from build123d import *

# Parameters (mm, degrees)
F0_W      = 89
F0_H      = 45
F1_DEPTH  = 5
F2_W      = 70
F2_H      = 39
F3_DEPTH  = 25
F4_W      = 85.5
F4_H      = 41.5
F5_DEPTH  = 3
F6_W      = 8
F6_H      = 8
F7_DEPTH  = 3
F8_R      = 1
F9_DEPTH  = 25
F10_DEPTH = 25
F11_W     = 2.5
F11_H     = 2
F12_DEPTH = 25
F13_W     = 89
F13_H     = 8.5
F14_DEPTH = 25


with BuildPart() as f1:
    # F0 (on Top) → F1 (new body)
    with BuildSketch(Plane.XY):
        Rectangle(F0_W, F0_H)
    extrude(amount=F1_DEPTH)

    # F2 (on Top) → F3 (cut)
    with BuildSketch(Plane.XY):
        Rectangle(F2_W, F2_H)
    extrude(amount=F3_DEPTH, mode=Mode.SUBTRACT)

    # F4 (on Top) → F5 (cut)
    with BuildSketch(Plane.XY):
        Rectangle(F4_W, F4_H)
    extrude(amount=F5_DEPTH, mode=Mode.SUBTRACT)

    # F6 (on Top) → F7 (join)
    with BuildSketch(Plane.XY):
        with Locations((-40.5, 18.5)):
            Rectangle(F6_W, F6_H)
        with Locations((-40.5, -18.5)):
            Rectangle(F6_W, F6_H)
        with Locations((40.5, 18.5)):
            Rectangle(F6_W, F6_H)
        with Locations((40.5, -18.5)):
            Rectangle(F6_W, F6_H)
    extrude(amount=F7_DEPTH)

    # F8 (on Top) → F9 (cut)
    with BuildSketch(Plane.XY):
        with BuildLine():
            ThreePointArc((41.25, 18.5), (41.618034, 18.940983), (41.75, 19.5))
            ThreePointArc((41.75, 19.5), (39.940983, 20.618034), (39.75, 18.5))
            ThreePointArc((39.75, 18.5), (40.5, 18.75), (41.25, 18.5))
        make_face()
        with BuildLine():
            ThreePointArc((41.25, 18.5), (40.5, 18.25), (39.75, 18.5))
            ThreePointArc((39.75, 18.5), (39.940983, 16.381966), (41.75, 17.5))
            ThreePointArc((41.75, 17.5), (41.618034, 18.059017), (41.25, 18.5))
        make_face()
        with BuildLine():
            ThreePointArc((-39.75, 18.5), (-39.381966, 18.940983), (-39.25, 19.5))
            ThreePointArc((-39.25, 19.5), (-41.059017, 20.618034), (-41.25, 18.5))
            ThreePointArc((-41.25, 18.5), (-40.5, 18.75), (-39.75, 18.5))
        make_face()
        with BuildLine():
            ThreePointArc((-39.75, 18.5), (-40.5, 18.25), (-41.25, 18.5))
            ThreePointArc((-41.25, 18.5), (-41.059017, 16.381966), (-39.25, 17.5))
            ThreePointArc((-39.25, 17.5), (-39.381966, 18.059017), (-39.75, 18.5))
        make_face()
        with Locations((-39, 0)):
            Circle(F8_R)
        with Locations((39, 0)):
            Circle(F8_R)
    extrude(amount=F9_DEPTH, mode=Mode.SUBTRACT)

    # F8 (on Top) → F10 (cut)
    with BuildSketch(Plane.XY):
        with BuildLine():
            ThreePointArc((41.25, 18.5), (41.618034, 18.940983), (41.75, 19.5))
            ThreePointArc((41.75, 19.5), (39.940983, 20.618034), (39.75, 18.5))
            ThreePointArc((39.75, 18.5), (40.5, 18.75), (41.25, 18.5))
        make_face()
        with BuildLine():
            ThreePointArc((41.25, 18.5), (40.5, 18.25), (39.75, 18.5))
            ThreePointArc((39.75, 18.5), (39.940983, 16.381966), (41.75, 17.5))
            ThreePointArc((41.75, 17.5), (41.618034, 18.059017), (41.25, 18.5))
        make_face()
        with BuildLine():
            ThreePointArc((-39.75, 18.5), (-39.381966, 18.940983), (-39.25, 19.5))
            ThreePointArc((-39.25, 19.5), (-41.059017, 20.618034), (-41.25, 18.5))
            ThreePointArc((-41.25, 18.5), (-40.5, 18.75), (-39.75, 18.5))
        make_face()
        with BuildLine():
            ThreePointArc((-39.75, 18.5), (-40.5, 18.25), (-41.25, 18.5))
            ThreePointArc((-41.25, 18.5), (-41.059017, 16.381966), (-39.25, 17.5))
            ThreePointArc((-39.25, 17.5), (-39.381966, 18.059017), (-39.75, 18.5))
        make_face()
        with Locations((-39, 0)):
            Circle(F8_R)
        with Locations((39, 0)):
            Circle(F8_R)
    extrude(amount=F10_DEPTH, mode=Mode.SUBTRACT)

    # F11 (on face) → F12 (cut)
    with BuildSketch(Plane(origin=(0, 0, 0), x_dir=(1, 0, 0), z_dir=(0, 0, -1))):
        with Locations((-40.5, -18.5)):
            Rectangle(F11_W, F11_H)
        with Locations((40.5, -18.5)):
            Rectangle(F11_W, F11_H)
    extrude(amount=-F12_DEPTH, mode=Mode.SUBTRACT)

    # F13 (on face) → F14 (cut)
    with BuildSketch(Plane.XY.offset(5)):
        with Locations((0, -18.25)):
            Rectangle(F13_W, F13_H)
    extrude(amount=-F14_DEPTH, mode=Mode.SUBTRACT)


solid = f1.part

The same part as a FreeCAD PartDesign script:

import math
import FreeCAD as App
import Part
import Sketcher
from FreeCAD import Vector

doc = App.newDocument("Part")
body = doc.addObject("PartDesign::Body", "Body")
body.AllowCompound = True

sketch1 = body.newObject("Sketcher::SketchObject", "Sketch")
sketch1.AttachmentSupport = (doc.getObject("XY_Plane"), [""])
sketch1.MapMode = "FlatFace"
sketch1.addGeometry([
    Part.LineSegment(Vector(-44, 22, 0), Vector(-44, -22, 0)),
    Part.LineSegment(Vector(-44, -22, 0), Vector(44, -22, 0)),
    Part.LineSegment(Vector(44, -22, 0), Vector(44, 22, 0)),
    Part.LineSegment(Vector(44, 22, 0), Vector(-44, 22, 0)),
], False)
sketch1.addConstraint([
    Sketcher.Constraint("Coincident", 0, 2, 1, 1),
    Sketcher.Constraint("Coincident", 1, 2, 2, 1),
    Sketcher.Constraint("Coincident", 2, 2, 3, 1),
    Sketcher.Constraint("Coincident", 3, 2, 0, 1),
    Sketcher.Constraint("Vertical", 0),
    Sketcher.Constraint("Horizontal", 1),
    Sketcher.Constraint("Vertical", 2),
    Sketcher.Constraint("Horizontal", 3),
    Sketcher.Constraint("Symmetric", 0, 2, 2, 2, -1, 1),
    Sketcher.Constraint("DistanceX", 1, 1, 1, 2, 89.0),
    Sketcher.Constraint("DistanceY", 0, 2, 0, 1, 45.0),
])
pad1 = body.newObject("PartDesign::Pad", "Pad")
pad1.Profile = sketch1
pad1.Length = 5

sketch2 = body.newObject("Sketcher::SketchObject", "Sketch001")
sketch2.AttachmentSupport = (doc.getObject("XY_Plane"), [""])
sketch2.MapMode = "FlatFace"
sketch2.addGeometry([
    Part.LineSegment(Vector(-35, 20, 0), Vector(-35, -20, 0)),
    Part.LineSegment(Vector(-35, -20, 0), Vector(35, -20, 0)),
    Part.LineSegment(Vector(35, -20, 0), Vector(35, 20, 0)),
    Part.LineSegment(Vector(35, 20, 0), Vector(-35, 20, 0)),
], False)
sketch2.addConstraint([
    Sketcher.Constraint("Coincident", 0, 2, 1, 1),
    Sketcher.Constraint("Coincident", 1, 2, 2, 1),
    Sketcher.Constraint("Coincident", 2, 2, 3, 1),
    Sketcher.Constraint("Coincident", 3, 2, 0, 1),
    Sketcher.Constraint("Vertical", 0),
    Sketcher.Constraint("Horizontal", 1),
    Sketcher.Constraint("Vertical", 2),
    Sketcher.Constraint("Horizontal", 3),
    Sketcher.Constraint("Symmetric", 0, 2, 2, 2, -1, 1),
    Sketcher.Constraint("DistanceX", 1, 1, 1, 2, 70.0),
    Sketcher.Constraint("DistanceY", 0, 2, 0, 1, 39.0),
])
pocket1 = body.newObject("PartDesign::Pocket", "Pocket")
pocket1.Profile = sketch2
pocket1.Length = 25
pocket1.Reversed = True

sketch3 = body.newObject("Sketcher::SketchObject", "Sketch002")
sketch3.AttachmentSupport = (doc.getObject("XY_Plane"), [""])
sketch3.MapMode = "FlatFace"
sketch3.addGeometry([
    Part.LineSegment(Vector(-43, 21, 0), Vector(-43, -21, 0)),
    Part.LineSegment(Vector(-43, -21, 0), Vector(43, -21, 0)),
    Part.LineSegment(Vector(43, -21, 0), Vector(43, 21, 0)),
    Part.LineSegment(Vector(43, 21, 0), Vector(-43, 21, 0)),
], False)
sketch3.addConstraint([
    Sketcher.Constraint("Coincident", 0, 2, 1, 1),
    Sketcher.Constraint("Coincident", 1, 2, 2, 1),
    Sketcher.Constraint("Coincident", 2, 2, 3, 1),
    Sketcher.Constraint("Coincident", 3, 2, 0, 1),
    Sketcher.Constraint("Vertical", 0),
    Sketcher.Constraint("Horizontal", 1),
    Sketcher.Constraint("Vertical", 2),
    Sketcher.Constraint("Horizontal", 3),
    Sketcher.Constraint("Symmetric", 0, 2, 2, 2, -1, 1),
    Sketcher.Constraint("DistanceX", 1, 1, 1, 2, 85.5),
    Sketcher.Constraint("DistanceY", 0, 2, 0, 1, 41.5),
])
pocket2 = body.newObject("PartDesign::Pocket", "Pocket001")
pocket2.Profile = sketch3
pocket2.Length = 3
pocket2.Reversed = True

sketch4 = body.newObject("Sketcher::SketchObject", "Sketch003")
sketch4.AttachmentSupport = (doc.getObject("XY_Plane"), [""])
sketch4.MapMode = "FlatFace"
sketch4.addGeometry([
    Part.LineSegment(Vector(-44, 22, 0), Vector(-44, 14, 0)),
    Part.LineSegment(Vector(-44, 14, 0), Vector(-36, 14, 0)),
    Part.LineSegment(Vector(-36, 14, 0), Vector(-36, 22, 0)),
    Part.LineSegment(Vector(-36, 22, 0), Vector(-44, 22, 0)),
    Part.LineSegment(Vector(-44, -14, 0), Vector(-44, -22, 0)),
    Part.LineSegment(Vector(-44, -22, 0), Vector(-36, -22, 0)),
    Part.LineSegment(Vector(-36, -22, 0), Vector(-36, -14, 0)),
    Part.LineSegment(Vector(-36, -14, 0), Vector(-44, -14, 0)),
    Part.LineSegment(Vector(36, 22, 0), Vector(36, 14, 0)),
    Part.LineSegment(Vector(36, 14, 0), Vector(44, 14, 0)),
    Part.LineSegment(Vector(44, 14, 0), Vector(44, 22, 0)),
    Part.LineSegment(Vector(44, 22, 0), Vector(36, 22, 0)),
    Part.LineSegment(Vector(36, -14, 0), Vector(36, -22, 0)),
    Part.LineSegment(Vector(36, -22, 0), Vector(44, -22, 0)),
    Part.LineSegment(Vector(44, -22, 0), Vector(44, -14, 0)),
    Part.LineSegment(Vector(44, -14, 0), Vector(36, -14, 0)),
], False)
sketch4.addConstraint([
    Sketcher.Constraint("Coincident", 0, 2, 1, 1),
    Sketcher.Constraint("Coincident", 1, 2, 2, 1),
    Sketcher.Constraint("Coincident", 2, 2, 3, 1),
    Sketcher.Constraint("Coincident", 3, 2, 0, 1),
    Sketcher.Constraint("Coincident", 4, 2, 5, 1),
    Sketcher.Constraint("Coincident", 5, 2, 6, 1),
    Sketcher.Constraint("Coincident", 6, 2, 7, 1),
    Sketcher.Constraint("Coincident", 7, 2, 4, 1),
    Sketcher.Constraint("Coincident", 8, 2, 9, 1),
    Sketcher.Constraint("Coincident", 9, 2, 10, 1),
    Sketcher.Constraint("Coincident", 10, 2, 11, 1),
    Sketcher.Constraint("Coincident", 11, 2, 8, 1),
    Sketcher.Constraint("Coincident", 12, 2, 13, 1),
    Sketcher.Constraint("Coincident", 13, 2, 14, 1),
    Sketcher.Constraint("Coincident", 14, 2, 15, 1),
    Sketcher.Constraint("Coincident", 15, 2, 12, 1),
    Sketcher.Constraint("Vertical", 0),
    Sketcher.Constraint("Horizontal", 1),
    Sketcher.Constraint("Vertical", 2),
    Sketcher.Constraint("Horizontal", 3),
    Sketcher.Constraint("Vertical", 4),
    Sketcher.Constraint("Horizontal", 5),
    Sketcher.Constraint("Vertical", 6),
    Sketcher.Constraint("Horizontal", 7),
    Sketcher.Constraint("Vertical", 8),
    Sketcher.Constraint("Horizontal", 9),
    Sketcher.Constraint("Vertical", 10),
    Sketcher.Constraint("Horizontal", 11),
    Sketcher.Constraint("Vertical", 12),
    Sketcher.Constraint("Horizontal", 13),
    Sketcher.Constraint("Vertical", 14),
    Sketcher.Constraint("Horizontal", 15),
    Sketcher.Constraint("Symmetric", 6, 2, 8, 2, -1, 1),
    Sketcher.Constraint("Symmetric", 4, 2, 10, 2, -1, 1),
    Sketcher.Constraint("Symmetric", 2, 2, 12, 2, -1, 1),
    Sketcher.Constraint("Symmetric", 0, 2, 14, 2, -1, 1),
    Sketcher.Constraint("Symmetric", 1, 2, 8, 2, -2),
    Sketcher.Constraint("Symmetric", 3, 2, 10, 2, -2),
    Sketcher.Constraint("Equal", 15, 0),
    Sketcher.Constraint("DistanceX", 1, 1, 1, 2, 8.0),
    Sketcher.Constraint("DistanceY", 4, 2, 0, 2, 37.0),
    Sketcher.Constraint("DistanceX", 1, 2, 8, 2, 73.0),
])
pad2 = body.newObject("PartDesign::Pad", "Pad001")
pad2.Profile = sketch4
pad2.Length = 3

sketch5 = body.newObject("Sketcher::SketchObject", "Sketch004")
sketch5.AttachmentSupport = (doc.getObject("XY_Plane"), [""])
sketch5.MapMode = "FlatFace"
sketch5.addGeometry([
    Part.ArcOfCircle(Part.Circle(Vector(40.5, 19.5, 0), Vector(0, 0, 1), 1.2), math.radians(-53), math.radians(0)),
    Part.ArcOfCircle(Part.Circle(Vector(40.5, 19.5, 0), Vector(0, 0, 1), 1.3), math.radians(0), math.radians(233)),
    Part.ArcOfCircle(Part.Circle(Vector(40.5, 17.5, 0), Vector(0, 0, 1), 1.2), math.radians(53), math.radians(127)),
    Part.ArcOfCircle(Part.Circle(Vector(40.5, 19.5, 0), Vector(0, 0, 1), 1.2), math.radians(-127), math.radians(-53)),
    Part.ArcOfCircle(Part.Circle(Vector(40.5, 17.5, 0), Vector(0, 0, 1), 1.3), math.radians(127), math.radians(360)),
    Part.ArcOfCircle(Part.Circle(Vector(40.5, 17.5, 0), Vector(0, 0, 1), 1.2), math.radians(0), math.radians(53)),
    Part.ArcOfCircle(Part.Circle(Vector(-40.5, 19.5, 0), Vector(0, 0, 1), 1.2), math.radians(-53), math.radians(0)),
    Part.ArcOfCircle(Part.Circle(Vector(-40.5, 19.5, 0), Vector(0, 0, 1), 1.3), math.radians(0), math.radians(233)),
    Part.ArcOfCircle(Part.Circle(Vector(-40.5, 17.5, 0), Vector(0, 0, 1), 1.2), math.radians(53), math.radians(127)),
    Part.ArcOfCircle(Part.Circle(Vector(-40.5, 19.5, 0), Vector(0, 0, 1), 1.2), math.radians(-127), math.radians(-53)),
    Part.ArcOfCircle(Part.Circle(Vector(-40.5, 17.5, 0), Vector(0, 0, 1), 1.3), math.radians(127), math.radians(360)),
    Part.ArcOfCircle(Part.Circle(Vector(-40.5, 17.5, 0), Vector(0, 0, 1), 1.2), math.radians(0), math.radians(53)),
    Part.Circle(Vector(-39, 0, 0), Vector(0, 0, 1), 1),
    Part.Circle(Vector(39, 0, 0), Vector(0, 0, 1), 1),
], False)
sketch5.addConstraint([
    Sketcher.Constraint("Tangent", 0, 2, 1, 1),
    Sketcher.Constraint("Coincident", 1, 2, 2, 2),
    Sketcher.Constraint("Coincident", 2, 1, 0, 1),
    Sketcher.Constraint("Coincident", 3, 1, 4, 1),
    Sketcher.Constraint("Tangent", 4, 2, 5, 1),
    Sketcher.Constraint("Coincident", 5, 2, 3, 2),
    Sketcher.Constraint("Tangent", 6, 2, 7, 1),
    Sketcher.Constraint("Coincident", 7, 2, 8, 2),
    Sketcher.Constraint("Coincident", 8, 1, 6, 1),
    Sketcher.Constraint("Coincident", 9, 1, 10, 1),
    Sketcher.Constraint("Tangent", 10, 2, 11, 1),
    Sketcher.Constraint("Coincident", 11, 2, 9, 2),
    Sketcher.Constraint("Coincident", 3, 3, 0, 3),
    Sketcher.Constraint("Coincident", 4, 3, 2, 3),
    Sketcher.Constraint("Coincident", 9, 3, 6, 3),
    Sketcher.Constraint("Coincident", 10, 3, 8, 3),
    Sketcher.Constraint("Coincident", 3, 1, 1, 2),
    Sketcher.Constraint("Coincident", 5, 2, 2, 1),
    Sketcher.Constraint("Coincident", 9, 1, 7, 2),
    Sketcher.Constraint("Coincident", 11, 2, 8, 1),
    Sketcher.Constraint("Equal", 1, 2),
    Sketcher.Constraint("Equal", 5, 6),
    Sketcher.Constraint("Equal", 7, 8),
    Sketcher.Constraint("Equal", 12, 13),
    Sketcher.Constraint("Symmetric", 12, 3, 13, 3, -1, 1),
    Sketcher.Constraint("Symmetric", 0, 3, 6, 3, -2),
    Sketcher.Constraint("Symmetric", 2, 3, 8, 3, -2),
    Sketcher.Constraint("PointOnObject", 12, 3, -1),
    Sketcher.Constraint("Horizontal", 9, 3, 0, 2),
    Sketcher.Constraint("Horizontal", 1, 2, 2, 1),
    Sketcher.Constraint("Horizontal", 11, 3, 4, 2),
    Sketcher.Constraint("Horizontal", 0, 2, 6, 2),
    Sketcher.Constraint("Horizontal", 4, 2, 10, 2),
    Sketcher.Constraint("Diameter", 12, 2.0),
    Sketcher.Constraint("Radius", 0, 1.25),
    Sketcher.Constraint("DistanceX", 12, 3, -1, 1, 39.0),
    Sketcher.Constraint("DistanceY", 2, 3, 0, 3, 2.0),
    Sketcher.Constraint("DistanceX", 6, 3, 1, 3, 81.0),
    Sketcher.Constraint("DistanceY", -1, 1, 0, 3, 19.5),
])
pocket3 = body.newObject("PartDesign::Pocket", "Pocket002")
pocket3.Profile = sketch5
pocket3.Length = 25
pocket3.Reversed = True

sketch6 = body.newObject("Sketcher::SketchObject", "Sketch005")
sketch6.AttachmentSupport = (doc.getObject("XY_Plane"), [""])
sketch6.MapMode = "FlatFace"
sketch6.addGeometry([
    Part.ArcOfCircle(Part.Circle(Vector(40.5, 19.5, 0), Vector(0, 0, 1), 1.2), math.radians(-53), math.radians(0)),
    Part.ArcOfCircle(Part.Circle(Vector(40.5, 19.5, 0), Vector(0, 0, 1), 1.3), math.radians(0), math.radians(233)),
    Part.ArcOfCircle(Part.Circle(Vector(40.5, 17.5, 0), Vector(0, 0, 1), 1.2), math.radians(53), math.radians(127)),
    Part.ArcOfCircle(Part.Circle(Vector(40.5, 19.5, 0), Vector(0, 0, 1), 1.2), math.radians(-127), math.radians(-53)),
    Part.ArcOfCircle(Part.Circle(Vector(40.5, 17.5, 0), Vector(0, 0, 1), 1.3), math.radians(127), math.radians(360)),
    Part.ArcOfCircle(Part.Circle(Vector(40.5, 17.5, 0), Vector(0, 0, 1), 1.2), math.radians(0), math.radians(53)),
    Part.ArcOfCircle(Part.Circle(Vector(-40.5, 19.5, 0), Vector(0, 0, 1), 1.2), math.radians(-53), math.radians(0)),
    Part.ArcOfCircle(Part.Circle(Vector(-40.5, 19.5, 0), Vector(0, 0, 1), 1.3), math.radians(0), math.radians(233)),
    Part.ArcOfCircle(Part.Circle(Vector(-40.5, 17.5, 0), Vector(0, 0, 1), 1.2), math.radians(53), math.radians(127)),
    Part.ArcOfCircle(Part.Circle(Vector(-40.5, 19.5, 0), Vector(0, 0, 1), 1.2), math.radians(-127), math.radians(-53)),
    Part.ArcOfCircle(Part.Circle(Vector(-40.5, 17.5, 0), Vector(0, 0, 1), 1.3), math.radians(127), math.radians(360)),
    Part.ArcOfCircle(Part.Circle(Vector(-40.5, 17.5, 0), Vector(0, 0, 1), 1.2), math.radians(0), math.radians(53)),
    Part.Circle(Vector(-39, 0, 0), Vector(0, 0, 1), 1),
    Part.Circle(Vector(39, 0, 0), Vector(0, 0, 1), 1),
], False)
sketch6.addConstraint([
    Sketcher.Constraint("Tangent", 0, 2, 1, 1),
    Sketcher.Constraint("Coincident", 1, 2, 2, 2),
    Sketcher.Constraint("Coincident", 2, 1, 0, 1),
    Sketcher.Constraint("Coincident", 3, 1, 4, 1),
    Sketcher.Constraint("Tangent", 4, 2, 5, 1),
    Sketcher.Constraint("Coincident", 5, 2, 3, 2),
    Sketcher.Constraint("Tangent", 6, 2, 7, 1),
    Sketcher.Constraint("Coincident", 7, 2, 8, 2),
    Sketcher.Constraint("Coincident", 8, 1, 6, 1),
    Sketcher.Constraint("Coincident", 9, 1, 10, 1),
    Sketcher.Constraint("Tangent", 10, 2, 11, 1),
    Sketcher.Constraint("Coincident", 11, 2, 9, 2),
    Sketcher.Constraint("Coincident", 3, 3, 0, 3),
    Sketcher.Constraint("Coincident", 4, 3, 2, 3),
    Sketcher.Constraint("Coincident", 9, 3, 6, 3),
    Sketcher.Constraint("Coincident", 10, 3, 8, 3),
    Sketcher.Constraint("Coincident", 3, 1, 1, 2),
    Sketcher.Constraint("Coincident", 5, 2, 2, 1),
    Sketcher.Constraint("Coincident", 9, 1, 7, 2),
    Sketcher.Constraint("Coincident", 11, 2, 8, 1),
    Sketcher.Constraint("Equal", 1, 2),
    Sketcher.Constraint("Equal", 5, 6),
    Sketcher.Constraint("Equal", 7, 8),
    Sketcher.Constraint("Equal", 12, 13),
    Sketcher.Constraint("Symmetric", 12, 3, 13, 3, -1, 1),
    Sketcher.Constraint("Symmetric", 0, 3, 6, 3, -2),
    Sketcher.Constraint("Symmetric", 2, 3, 8, 3, -2),
    Sketcher.Constraint("PointOnObject", 12, 3, -1),
    Sketcher.Constraint("Horizontal", 9, 3, 0, 2),
    Sketcher.Constraint("Horizontal", 1, 2, 2, 1),
    Sketcher.Constraint("Horizontal", 11, 3, 4, 2),
    Sketcher.Constraint("Horizontal", 0, 2, 6, 2),
    Sketcher.Constraint("Horizontal", 4, 2, 10, 2),
    Sketcher.Constraint("Diameter", 12, 2.0),
    Sketcher.Constraint("Radius", 0, 1.25),
    Sketcher.Constraint("DistanceX", 12, 3, -1, 1, 39.0),
    Sketcher.Constraint("DistanceY", 2, 3, 0, 3, 2.0),
    Sketcher.Constraint("DistanceX", 6, 3, 1, 3, 81.0),
    Sketcher.Constraint("DistanceY", -1, 1, 0, 3, 19.5),
])
pocket4 = body.newObject("PartDesign::Pocket", "Pocket003")
pocket4.Profile = sketch6
pocket4.Length = 25
pocket4.Reversed = True

sketch7 = body.newObject("Sketcher::SketchObject", "Sketch006")
sketch7.AttachmentSupport = (doc.getObject("XY_Plane"), [""])
sketch7.MapMode = "FlatFace"
sketch7.addGeometry([
    Part.LineSegment(Vector(-41.8, 17.5, 0), Vector(-41.8, 19.5, 0)),
    Part.LineSegment(Vector(-41.8, 19.5, 0), Vector(-39.2, 19.5, 0)),
    Part.LineSegment(Vector(-39.2, 19.5, 0), Vector(-39.2, 17.5, 0)),
    Part.LineSegment(Vector(-39.2, 17.5, 0), Vector(-41.8, 17.5, 0)),
    Part.LineSegment(Vector(39.2, 17.5, 0), Vector(39.2, 19.5, 0)),
    Part.LineSegment(Vector(39.2, 19.5, 0), Vector(41.8, 19.5, 0)),
    Part.LineSegment(Vector(41.8, 19.5, 0), Vector(41.8, 17.5, 0)),
    Part.LineSegment(Vector(41.8, 17.5, 0), Vector(39.2, 17.5, 0)),
], False)
sketch7.addConstraint([
    Sketcher.Constraint("Coincident", 0, 2, 1, 1),
    Sketcher.Constraint("Coincident", 1, 2, 2, 1),
    Sketcher.Constraint("Coincident", 2, 2, 3, 1),
    Sketcher.Constraint("Coincident", 3, 2, 0, 1),
    Sketcher.Constraint("Coincident", 4, 2, 5, 1),
    Sketcher.Constraint("Coincident", 5, 2, 6, 1),
    Sketcher.Constraint("Coincident", 6, 2, 7, 1),
    Sketcher.Constraint("Coincident", 7, 2, 4, 1),
    Sketcher.Constraint("Vertical", 0),
    Sketcher.Constraint("Horizontal", 1),
    Sketcher.Constraint("Vertical", 2),
    Sketcher.Constraint("Horizontal", 3),
    Sketcher.Constraint("Vertical", 4),
    Sketcher.Constraint("Horizontal", 5),
    Sketcher.Constraint("Vertical", 6),
    Sketcher.Constraint("Horizontal", 7),
    Sketcher.Constraint("Symmetric", 1, 2, 4, 2, -2),
    Sketcher.Constraint("Symmetric", 3, 2, 6, 2, -2),
    Sketcher.Constraint("DistanceY", 0, 1, 0, 2, 2.0),
    Sketcher.Constraint("DistanceX", 1, 1, 1, 2, 2.5),
    Sketcher.Constraint("DistanceX", 0, 2, 4, 2, 81.0),
    Sketcher.Constraint("DistanceY", -1, 1, 0, 2, 19.5),
])
pocket5 = body.newObject("PartDesign::Pocket", "Pocket004")
pocket5.Profile = sketch7
pocket5.Length = 25
pocket5.Reversed = True

sketch8 = body.newObject("Sketcher::SketchObject", "Sketch007")
sketch8.AttachmentSupport = (doc.getObject("XY_Plane"), [""])
sketch8.MapMode = "FlatFace"
sketch8.AttachmentOffset = App.Placement(Vector(0, 0, 5), App.Rotation())
sketch8.addGeometry([
    Part.LineSegment(Vector(-44, -14, 0), Vector(-44, -22, 0)),
    Part.LineSegment(Vector(-44, -22, 0), Vector(44, -22, 0)),
    Part.LineSegment(Vector(44, -22, 0), Vector(44, -14, 0)),
    Part.LineSegment(Vector(44, -14, 0), Vector(-44, -14, 0)),
], False)
sketch8.addConstraint([
    Sketcher.Constraint("Coincident", 0, 2, 1, 1),
    Sketcher.Constraint("Coincident", 1, 2, 2, 1),
    Sketcher.Constraint("Coincident", 2, 2, 3, 1),
    Sketcher.Constraint("Coincident", 3, 2, 0, 1),
    Sketcher.Constraint("Vertical", 0),
    Sketcher.Constraint("Horizontal", 1),
    Sketcher.Constraint("Vertical", 2),
    Sketcher.Constraint("Horizontal", 3),
    Sketcher.Constraint("DistanceX", 1, 1, 1, 2, 89.0),
    Sketcher.Constraint("DistanceY", 0, 2, 0, 1, 8.5),
    Sketcher.Constraint("DistanceY", 2, 2, -1, 1, 14.0),
    Sketcher.Constraint("DistanceX", 0, 2, -1, 1, 44.5),
])
pocket6 = body.newObject("PartDesign::Pocket", "Pocket005")
pocket6.Profile = sketch8
pocket6.Length = 25

doc.recompute()
